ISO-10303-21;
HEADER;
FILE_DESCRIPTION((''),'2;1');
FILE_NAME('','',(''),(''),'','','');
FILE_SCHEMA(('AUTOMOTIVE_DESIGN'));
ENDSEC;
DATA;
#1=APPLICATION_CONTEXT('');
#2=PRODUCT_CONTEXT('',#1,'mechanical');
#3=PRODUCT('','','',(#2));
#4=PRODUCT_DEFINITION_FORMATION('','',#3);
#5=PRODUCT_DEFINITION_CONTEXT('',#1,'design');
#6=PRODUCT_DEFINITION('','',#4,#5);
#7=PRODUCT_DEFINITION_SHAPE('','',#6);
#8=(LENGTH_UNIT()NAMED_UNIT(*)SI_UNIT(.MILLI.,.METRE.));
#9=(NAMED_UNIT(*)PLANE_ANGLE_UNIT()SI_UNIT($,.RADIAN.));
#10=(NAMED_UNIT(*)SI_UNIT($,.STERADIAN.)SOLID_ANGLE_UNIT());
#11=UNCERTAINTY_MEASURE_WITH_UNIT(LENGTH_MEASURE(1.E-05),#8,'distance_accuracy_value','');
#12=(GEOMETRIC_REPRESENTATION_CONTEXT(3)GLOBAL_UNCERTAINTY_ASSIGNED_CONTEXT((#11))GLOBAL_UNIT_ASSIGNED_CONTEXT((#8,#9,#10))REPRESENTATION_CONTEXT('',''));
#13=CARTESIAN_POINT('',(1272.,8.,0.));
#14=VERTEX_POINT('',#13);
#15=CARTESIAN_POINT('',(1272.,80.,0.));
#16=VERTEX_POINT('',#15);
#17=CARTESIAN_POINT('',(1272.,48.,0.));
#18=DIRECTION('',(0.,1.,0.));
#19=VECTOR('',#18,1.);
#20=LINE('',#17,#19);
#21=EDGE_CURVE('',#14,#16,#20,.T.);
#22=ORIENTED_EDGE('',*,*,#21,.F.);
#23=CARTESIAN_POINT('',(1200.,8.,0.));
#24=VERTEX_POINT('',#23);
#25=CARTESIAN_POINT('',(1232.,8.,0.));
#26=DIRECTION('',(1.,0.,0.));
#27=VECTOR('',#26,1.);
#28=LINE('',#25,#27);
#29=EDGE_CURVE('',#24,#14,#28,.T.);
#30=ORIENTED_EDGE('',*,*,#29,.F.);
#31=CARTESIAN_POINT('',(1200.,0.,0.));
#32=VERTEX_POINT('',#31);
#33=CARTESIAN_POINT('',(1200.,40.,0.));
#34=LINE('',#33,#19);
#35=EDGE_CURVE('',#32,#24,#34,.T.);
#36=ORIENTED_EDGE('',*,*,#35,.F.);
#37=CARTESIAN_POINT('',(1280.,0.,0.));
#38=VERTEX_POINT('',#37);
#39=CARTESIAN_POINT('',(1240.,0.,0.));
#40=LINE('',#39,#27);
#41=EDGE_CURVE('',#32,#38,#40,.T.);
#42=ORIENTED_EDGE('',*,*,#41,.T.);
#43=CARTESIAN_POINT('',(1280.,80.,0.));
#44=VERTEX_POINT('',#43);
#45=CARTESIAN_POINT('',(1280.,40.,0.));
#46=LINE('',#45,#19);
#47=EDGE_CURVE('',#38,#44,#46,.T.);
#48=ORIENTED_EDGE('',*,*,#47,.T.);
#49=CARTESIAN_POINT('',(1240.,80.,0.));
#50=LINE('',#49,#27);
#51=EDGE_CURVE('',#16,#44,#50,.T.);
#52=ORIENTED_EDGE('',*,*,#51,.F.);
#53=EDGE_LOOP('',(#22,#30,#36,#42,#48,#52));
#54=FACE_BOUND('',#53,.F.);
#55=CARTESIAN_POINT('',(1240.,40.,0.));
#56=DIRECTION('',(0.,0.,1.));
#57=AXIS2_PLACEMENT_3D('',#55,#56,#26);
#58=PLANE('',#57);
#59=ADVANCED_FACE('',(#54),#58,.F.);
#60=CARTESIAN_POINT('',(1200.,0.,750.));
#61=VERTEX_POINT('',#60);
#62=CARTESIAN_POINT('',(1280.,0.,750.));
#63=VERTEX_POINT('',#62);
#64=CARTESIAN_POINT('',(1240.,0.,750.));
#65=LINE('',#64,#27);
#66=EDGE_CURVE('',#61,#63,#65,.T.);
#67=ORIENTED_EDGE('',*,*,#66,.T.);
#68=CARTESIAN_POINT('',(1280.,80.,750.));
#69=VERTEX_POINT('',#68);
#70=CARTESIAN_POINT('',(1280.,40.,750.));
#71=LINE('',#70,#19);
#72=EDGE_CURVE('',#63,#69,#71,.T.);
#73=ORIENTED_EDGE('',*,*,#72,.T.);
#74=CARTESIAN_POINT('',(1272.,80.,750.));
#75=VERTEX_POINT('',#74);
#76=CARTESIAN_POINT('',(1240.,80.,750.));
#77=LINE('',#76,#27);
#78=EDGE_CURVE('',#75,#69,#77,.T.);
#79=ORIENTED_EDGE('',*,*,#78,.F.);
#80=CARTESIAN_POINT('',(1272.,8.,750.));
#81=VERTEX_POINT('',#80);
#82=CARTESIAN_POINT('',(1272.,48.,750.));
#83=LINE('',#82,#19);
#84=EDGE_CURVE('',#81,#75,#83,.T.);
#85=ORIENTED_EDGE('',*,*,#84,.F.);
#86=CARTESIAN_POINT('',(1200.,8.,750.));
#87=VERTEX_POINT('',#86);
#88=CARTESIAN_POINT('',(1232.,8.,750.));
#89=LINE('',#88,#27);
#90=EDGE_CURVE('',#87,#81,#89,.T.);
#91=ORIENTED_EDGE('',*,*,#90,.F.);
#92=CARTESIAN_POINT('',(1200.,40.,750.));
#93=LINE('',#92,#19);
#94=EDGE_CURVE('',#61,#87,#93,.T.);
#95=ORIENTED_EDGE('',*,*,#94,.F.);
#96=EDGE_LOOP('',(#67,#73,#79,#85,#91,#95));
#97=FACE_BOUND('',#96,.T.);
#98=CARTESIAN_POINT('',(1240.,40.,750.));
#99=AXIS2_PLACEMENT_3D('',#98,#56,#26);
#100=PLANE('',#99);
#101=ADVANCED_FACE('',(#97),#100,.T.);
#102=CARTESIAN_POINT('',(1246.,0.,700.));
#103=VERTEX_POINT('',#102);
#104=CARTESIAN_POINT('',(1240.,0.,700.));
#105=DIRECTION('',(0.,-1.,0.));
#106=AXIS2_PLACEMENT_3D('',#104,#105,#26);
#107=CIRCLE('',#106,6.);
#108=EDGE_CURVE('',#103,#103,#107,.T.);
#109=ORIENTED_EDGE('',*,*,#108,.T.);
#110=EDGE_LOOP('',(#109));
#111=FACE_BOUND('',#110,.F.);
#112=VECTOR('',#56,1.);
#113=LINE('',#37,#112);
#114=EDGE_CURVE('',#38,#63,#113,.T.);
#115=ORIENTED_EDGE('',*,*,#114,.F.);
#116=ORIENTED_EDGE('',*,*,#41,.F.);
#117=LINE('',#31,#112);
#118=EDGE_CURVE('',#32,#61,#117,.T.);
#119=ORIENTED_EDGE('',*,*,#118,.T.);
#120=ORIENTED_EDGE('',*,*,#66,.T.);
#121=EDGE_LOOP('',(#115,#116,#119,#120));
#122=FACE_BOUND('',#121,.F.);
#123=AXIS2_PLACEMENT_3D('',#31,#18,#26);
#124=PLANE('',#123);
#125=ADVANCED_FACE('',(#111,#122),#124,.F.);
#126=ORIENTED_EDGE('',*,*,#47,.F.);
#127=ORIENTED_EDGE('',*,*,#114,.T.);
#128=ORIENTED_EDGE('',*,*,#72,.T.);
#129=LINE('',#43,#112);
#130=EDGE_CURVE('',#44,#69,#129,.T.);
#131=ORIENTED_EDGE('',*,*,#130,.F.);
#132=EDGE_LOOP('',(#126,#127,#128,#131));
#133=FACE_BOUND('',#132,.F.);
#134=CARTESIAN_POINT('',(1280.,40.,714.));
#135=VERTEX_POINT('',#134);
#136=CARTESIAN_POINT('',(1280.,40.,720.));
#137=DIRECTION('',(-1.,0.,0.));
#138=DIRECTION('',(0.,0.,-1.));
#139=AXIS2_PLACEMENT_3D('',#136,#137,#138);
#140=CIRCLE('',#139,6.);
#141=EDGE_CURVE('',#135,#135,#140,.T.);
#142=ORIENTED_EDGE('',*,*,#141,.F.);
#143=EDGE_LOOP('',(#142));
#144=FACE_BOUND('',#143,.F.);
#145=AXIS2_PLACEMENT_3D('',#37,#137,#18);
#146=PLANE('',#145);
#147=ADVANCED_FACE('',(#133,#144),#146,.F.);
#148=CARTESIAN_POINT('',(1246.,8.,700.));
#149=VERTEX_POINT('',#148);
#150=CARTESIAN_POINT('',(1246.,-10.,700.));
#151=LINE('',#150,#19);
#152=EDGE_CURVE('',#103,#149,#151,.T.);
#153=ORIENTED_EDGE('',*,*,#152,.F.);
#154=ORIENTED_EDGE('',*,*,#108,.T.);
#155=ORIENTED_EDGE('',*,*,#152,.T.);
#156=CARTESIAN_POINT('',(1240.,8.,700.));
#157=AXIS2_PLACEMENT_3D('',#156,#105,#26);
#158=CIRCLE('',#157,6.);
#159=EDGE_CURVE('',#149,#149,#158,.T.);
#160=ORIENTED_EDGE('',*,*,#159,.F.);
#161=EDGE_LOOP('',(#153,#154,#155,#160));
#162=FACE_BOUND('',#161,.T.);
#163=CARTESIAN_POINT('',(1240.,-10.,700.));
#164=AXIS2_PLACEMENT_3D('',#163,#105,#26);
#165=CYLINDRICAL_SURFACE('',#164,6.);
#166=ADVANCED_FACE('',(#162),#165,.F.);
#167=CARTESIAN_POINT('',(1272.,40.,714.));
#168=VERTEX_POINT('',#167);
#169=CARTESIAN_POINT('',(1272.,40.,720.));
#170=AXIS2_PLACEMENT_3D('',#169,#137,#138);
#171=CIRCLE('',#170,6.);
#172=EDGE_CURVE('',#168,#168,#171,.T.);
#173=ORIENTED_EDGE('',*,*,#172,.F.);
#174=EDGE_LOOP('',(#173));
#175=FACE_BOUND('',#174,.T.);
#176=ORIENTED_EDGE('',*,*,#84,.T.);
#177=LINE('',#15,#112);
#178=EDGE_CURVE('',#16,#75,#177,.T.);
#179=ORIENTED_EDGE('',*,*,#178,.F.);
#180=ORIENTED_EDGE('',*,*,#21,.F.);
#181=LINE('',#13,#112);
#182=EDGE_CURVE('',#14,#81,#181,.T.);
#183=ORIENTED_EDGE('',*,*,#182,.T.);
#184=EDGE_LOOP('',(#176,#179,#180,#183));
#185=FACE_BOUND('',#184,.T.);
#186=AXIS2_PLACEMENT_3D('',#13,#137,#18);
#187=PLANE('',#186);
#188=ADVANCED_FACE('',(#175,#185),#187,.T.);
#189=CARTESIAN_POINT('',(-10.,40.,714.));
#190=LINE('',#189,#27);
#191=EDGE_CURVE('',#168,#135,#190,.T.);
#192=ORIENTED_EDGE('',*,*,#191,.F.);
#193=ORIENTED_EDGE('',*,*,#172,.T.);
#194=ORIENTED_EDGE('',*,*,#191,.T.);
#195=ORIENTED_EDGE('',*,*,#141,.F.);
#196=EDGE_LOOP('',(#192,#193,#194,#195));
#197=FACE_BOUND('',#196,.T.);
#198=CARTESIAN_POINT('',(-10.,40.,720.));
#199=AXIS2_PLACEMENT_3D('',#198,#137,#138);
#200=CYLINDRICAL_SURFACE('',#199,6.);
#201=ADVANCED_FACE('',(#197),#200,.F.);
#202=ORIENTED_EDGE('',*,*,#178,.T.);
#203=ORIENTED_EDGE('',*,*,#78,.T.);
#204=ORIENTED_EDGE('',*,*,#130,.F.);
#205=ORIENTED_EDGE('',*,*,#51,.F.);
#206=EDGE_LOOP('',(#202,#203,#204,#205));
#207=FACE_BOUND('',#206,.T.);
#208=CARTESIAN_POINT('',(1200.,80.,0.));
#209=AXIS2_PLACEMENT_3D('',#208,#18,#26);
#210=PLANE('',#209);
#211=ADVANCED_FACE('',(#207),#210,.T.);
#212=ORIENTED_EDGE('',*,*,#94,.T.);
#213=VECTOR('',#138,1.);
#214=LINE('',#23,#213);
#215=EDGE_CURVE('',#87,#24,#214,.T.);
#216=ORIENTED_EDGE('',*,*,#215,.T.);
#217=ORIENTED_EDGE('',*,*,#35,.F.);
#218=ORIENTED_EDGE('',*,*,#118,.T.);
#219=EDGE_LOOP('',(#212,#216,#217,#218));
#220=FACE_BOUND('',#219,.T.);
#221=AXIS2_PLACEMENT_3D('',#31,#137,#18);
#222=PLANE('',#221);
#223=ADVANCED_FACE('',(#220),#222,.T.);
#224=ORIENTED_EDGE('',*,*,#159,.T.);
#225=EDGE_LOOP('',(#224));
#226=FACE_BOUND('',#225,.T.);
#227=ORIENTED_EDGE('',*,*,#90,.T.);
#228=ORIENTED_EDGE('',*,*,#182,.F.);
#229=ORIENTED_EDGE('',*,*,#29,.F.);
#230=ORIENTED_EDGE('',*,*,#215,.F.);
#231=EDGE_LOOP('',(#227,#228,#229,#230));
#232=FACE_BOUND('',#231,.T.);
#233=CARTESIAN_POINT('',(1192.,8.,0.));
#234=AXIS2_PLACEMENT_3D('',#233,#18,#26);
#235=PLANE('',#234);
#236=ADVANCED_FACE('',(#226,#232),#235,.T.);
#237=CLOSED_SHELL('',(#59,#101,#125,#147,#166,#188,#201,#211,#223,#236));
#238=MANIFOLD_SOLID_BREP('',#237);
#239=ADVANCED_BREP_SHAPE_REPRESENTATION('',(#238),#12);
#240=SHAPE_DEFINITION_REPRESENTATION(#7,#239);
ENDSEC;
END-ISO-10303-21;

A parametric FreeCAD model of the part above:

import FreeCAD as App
import Part
import Sketcher
Q = App.Units.Quantity

doc = App.newDocument("Part")
body = doc.addObject("PartDesign::Body", "Body")

# Sketch on XZ plane
sketch1 = body.newObject("Sketcher::SketchObject", "Sketch")
sketch1.AttachmentSupport = (doc.getObject("XZ_Plane"), [""])
sketch1.MapMode = "FlatFace"
sketch1.AttachmentOffset = App.Placement(App.Vector(0, 0, 10), App.Rotation())
sketch1.addGeometry(Part.Circle(App.Vector(1240, 700, 0), App.Vector(0, 0, 1), 6), False)
sketch1.addConstraint([
    Sketcher.Constraint("Diameter", 0, Q("12 mm")),
    Sketcher.Constraint("DistanceX", -1, 1, 0, 3, Q("1240 mm")),
    Sketcher.Constraint("DistanceY", -1, 1, 0, 3, Q("700 mm")),
])
pad1 = body.newObject("PartDesign::Pad", "Pad")
pad1.Profile = sketch1
pad1.Length = 900
pad1.Reversed = True
body2 = doc.addObject("PartDesign::Body", "Body001")

# Sketch on YZ plane
sketch2 = body2.newObject("Sketcher::SketchObject", "Sketch001")
sketch2.AttachmentSupport = (doc.getObject("YZ_Plane001"), [""])
sketch2.MapMode = "FlatFace"
sketch2.AttachmentOffset = App.Placement(App.Vector(0, 0, -10), App.Rotation())
sketch2.addGeometry(Part.Circle(App.Vector(40, 720, 0), App.Vector(0, 0, 1), 6), False)
sketch2.addConstraint([
    Sketcher.Constraint("Diameter", 0, Q("12 mm")),
    Sketcher.Constraint("DistanceX", -1, 1, 0, 3, Q("40 mm")),
    Sketcher.Constraint("DistanceY", -1, 1, 0, 3, Q("720 mm")),
])
pad2 = body2.newObject("PartDesign::Pad", "Pad001")
pad2.Profile = sketch2
pad2.Length = 1300
body3 = doc.addObject("PartDesign::Body", "Body002")

# Sketch on XY plane
sketch3 = body3.newObject("Sketcher::SketchObject", "Sketch002")
sketch3.AttachmentSupport = (doc.getObject("XY_Plane002"), [""])
sketch3.MapMode = "FlatFace"
sketch3.addGeometry([
    Part.LineSegment(App.Vector(1192, 88, 0), App.Vector(1192, 8, 0)),
    Part.LineSegment(App.Vector(1192, 8, 0), App.Vector(1272, 8, 0)),
    Part.LineSegment(App.Vector(1272, 8, 0), App.Vector(1272, 88, 0)),
    Part.LineSegment(App.Vector(1272, 88, 0), App.Vector(1192, 88, 0)),
], False)
sketch3.addConstraint([
    Sketcher.Constraint("Coincident", 0, 2, 1, 1),
    Sketcher.Constraint("Coincident", 1, 2, 2, 1),
    Sketcher.Constraint("Coincident", 2, 2, 3, 1),
    Sketcher.Constraint("Coincident", 3, 2, 0, 1),
    Sketcher.Constraint("Vertical", 0),
    Sketcher.Constraint("Horizontal", 1),
    Sketcher.Constraint("Vertical", 2),
    Sketcher.Constraint("Horizontal", 3),
    Sketcher.Constraint("Equal", 3, 0),
    Sketcher.Constraint("DistanceX", 1, 1, 1, 2, Q("80 mm")),
    Sketcher.Constraint("DistanceX", -1, 1, 0, 2, Q("1192 mm")),
    Sketcher.Constraint("DistanceY", -1, 1, 0, 2, Q("8 mm")),
])
pad3 = body3.newObject("PartDesign::Pad", "Pad002")
pad3.Profile = sketch3
pad3.Length = 750
body4 = doc.addObject("PartDesign::Body", "Body003")

# Sketch on XY plane
sketch4 = body4.newObject("Sketcher::SketchObject", "Sketch003")
sketch4.AttachmentSupport = (doc.getObject("XY_Plane003"), [""])
sketch4.MapMode = "FlatFace"
sketch4.addGeometry([
    Part.LineSegment(App.Vector(1200, 80, 0), App.Vector(1200, 0, 0)),
    Part.LineSegment(App.Vector(1200, 0, 0), App.Vector(1280, 0, 0)),
    Part.LineSegment(App.Vector(1280, 0, 0), App.Vector(1280, 80, 0)),
    Part.LineSegment(App.Vector(1280, 80, 0), App.Vector(1200, 80, 0)),
], False)
sketch4.addConstraint([
    Sketcher.Constraint("Coincident", 0, 2, 1, 1),
    Sketcher.Constraint("Coincident", 1, 2, 2, 1),
    Sketcher.Constraint("Coincident", 2, 2, 3, 1),
    Sketcher.Constraint("Coincident", 3, 2, 0, 1),
    Sketcher.Constraint("Vertical", 0),
    Sketcher.Constraint("Horizontal", 1),
    Sketcher.Constraint("Vertical", 2),
    Sketcher.Constraint("Horizontal", 3),
    Sketcher.Constraint("PointOnObject", 0, 2, -1),
    Sketcher.Constraint("Equal", 3, 0),
    Sketcher.Constraint("DistanceX", 1, 1, 1, 2, Q("80 mm")),
    Sketcher.Constraint("DistanceX", -1, 1, 0, 2, Q("1200 mm")),
])
pad4 = body4.newObject("PartDesign::Pad", "Pad003")
pad4.Profile = sketch4
pad4.Length = 750
doc.recompute()

boolean = body4.newObject("PartDesign::Boolean", "Boolean")
boolean.Type = "Cut"
boolean.addObjects([body3])
doc.recompute()

boolean2 = body4.newObject("PartDesign::Boolean", "Boolean001")
boolean2.Type = "Cut"
boolean2.addObjects([body2])
doc.recompute()

boolean3 = body4.newObject("PartDesign::Boolean", "Boolean002")
boolean3.Type = "Cut"
boolean3.addObjects([body])

doc.recompute()
